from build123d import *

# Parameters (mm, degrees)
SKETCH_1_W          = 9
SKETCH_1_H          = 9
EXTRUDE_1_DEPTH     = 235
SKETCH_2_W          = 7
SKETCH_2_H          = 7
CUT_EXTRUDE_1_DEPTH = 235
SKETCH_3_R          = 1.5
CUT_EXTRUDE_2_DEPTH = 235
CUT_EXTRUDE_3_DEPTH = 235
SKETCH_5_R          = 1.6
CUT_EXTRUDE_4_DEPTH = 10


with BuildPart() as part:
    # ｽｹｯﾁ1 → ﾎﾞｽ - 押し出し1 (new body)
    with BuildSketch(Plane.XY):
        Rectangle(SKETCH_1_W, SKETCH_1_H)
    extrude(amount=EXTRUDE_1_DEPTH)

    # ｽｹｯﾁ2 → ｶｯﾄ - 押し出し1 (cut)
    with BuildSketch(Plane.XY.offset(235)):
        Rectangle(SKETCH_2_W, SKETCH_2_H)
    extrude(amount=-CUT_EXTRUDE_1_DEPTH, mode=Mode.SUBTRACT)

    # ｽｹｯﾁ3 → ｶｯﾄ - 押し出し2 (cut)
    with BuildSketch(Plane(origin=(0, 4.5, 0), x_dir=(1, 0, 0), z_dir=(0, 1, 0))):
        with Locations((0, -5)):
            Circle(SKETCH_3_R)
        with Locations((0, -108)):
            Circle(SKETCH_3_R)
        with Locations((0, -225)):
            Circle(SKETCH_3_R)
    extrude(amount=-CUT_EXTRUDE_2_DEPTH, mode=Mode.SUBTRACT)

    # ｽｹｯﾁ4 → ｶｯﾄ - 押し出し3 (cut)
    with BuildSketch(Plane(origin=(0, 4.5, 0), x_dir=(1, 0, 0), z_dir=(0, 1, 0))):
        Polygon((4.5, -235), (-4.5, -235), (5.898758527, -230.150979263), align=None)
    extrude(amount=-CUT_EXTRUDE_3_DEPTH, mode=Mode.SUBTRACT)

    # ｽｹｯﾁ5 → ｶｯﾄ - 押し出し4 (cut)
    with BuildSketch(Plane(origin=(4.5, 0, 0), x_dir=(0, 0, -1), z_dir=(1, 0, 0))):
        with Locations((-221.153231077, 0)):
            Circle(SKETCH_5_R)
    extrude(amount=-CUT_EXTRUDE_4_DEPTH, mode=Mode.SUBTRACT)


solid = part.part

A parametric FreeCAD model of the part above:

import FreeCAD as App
import Part
import Sketcher
Q = App.Units.Quantity

doc = App.newDocument("Part")
body = doc.addObject("PartDesign::Body", "Body")

# Sketch on XY plane
sketch1 = body.newObject("Sketcher::SketchObject", "Sketch")
sketch1.AttachmentSupport = (doc.getObject("XY_Plane"), [""])
sketch1.MapMode = "FlatFace"
sketch1.addGeometry(Part.LineSegment(App.Vector(-4.5, 4.5, 0), App.Vector(-4.5, -4.5, 0)), False)
sketch1.addGeometry(Part.LineSegment(App.Vector(-4.5, -4.5, 0), App.Vector(4.5, -4.5, 0)), False)
sketch1.addGeometry(Part.LineSegment(App.Vector(4.5, -4.5, 0), App.Vector(4.5, 4.5, 0)), False)
sketch1.addGeometry(Part.LineSegment(App.Vector(4.5, 4.5, 0), App.Vector(-4.5, 4.5, 0)), False)
sketch1.addConstraint(Sketcher.Constraint("Coincident", 0, 2, 1, 1))
sketch1.addConstraint(Sketcher.Constraint("Coincident", 1, 2, 2, 1))
sketch1.addConstraint(Sketcher.Constraint("Coincident", 2, 2, 3, 1))
sketch1.addConstraint(Sketcher.Constraint("Coincident", 3, 2, 0, 1))
sketch1.addConstraint(Sketcher.Constraint("Vertical", 0))
sketch1.addConstraint(Sketcher.Constraint("Horizontal", 1))
sketch1.addConstraint(Sketcher.Constraint("Vertical", 2))
sketch1.addConstraint(Sketcher.Constraint("Horizontal", 3))
sketch1.addConstraint(Sketcher.Constraint("Symmetric", 0, 2, 2, 2, -1, 1))
sketch1.addConstraint(Sketcher.Constraint("Equal", 3, 0))
sketch1.addConstraint(Sketcher.Constraint("DistanceX", 1, 1, 1, 2, 9.0))
pad1 = body.newObject("PartDesign::Pad", "Pad")
pad1.Profile = sketch1
pad1.Length = 235

# Sketch on XY plane
sketch2 = body.newObject("Sketcher::SketchObject", "Sketch001")
sketch2.AttachmentSupport = (doc.getObject("XY_Plane"), [""])
sketch2.MapMode = "FlatFace"
sketch2.AttachmentOffset = App.Placement(App.Vector(0, 0, 235), App.Rotation())
sketch2.addGeometry(Part.LineSegment(App.Vector(-3.5, 3.5, 0), App.Vector(-3.5, -3.5, 0)), False)
sketch2.addGeometry(Part.LineSegment(App.Vector(-3.5, -3.5, 0), App.Vector(3.5, -3.5, 0)), False)
sketch2.addGeometry(Part.LineSegment(App.Vector(3.5, -3.5, 0), App.Vector(3.5, 3.5, 0)), False)
sketch2.addGeometry(Part.LineSegment(App.Vector(3.5, 3.5, 0), App.Vector(-3.5, 3.5, 0)), False)
sketch2.addConstraint(Sketcher.Constraint("Coincident", 0, 2, 1, 1))
sketch2.addConstraint(Sketcher.Constraint("Coincident", 1, 2, 2, 1))
sketch2.addConstraint(Sketcher.Constraint("Coincident", 2, 2, 3, 1))
sketch2.addConstraint(Sketcher.Constraint("Coincident", 3, 2, 0, 1))
sketch2.addConstraint(Sketcher.Constraint("Vertical", 0))
sketch2.addConstraint(Sketcher.Constraint("Horizontal", 1))
sketch2.addConstraint(Sketcher.Constraint("Vertical", 2))
sketch2.addConstraint(Sketcher.Constraint("Horizontal", 3))
sketch2.addConstraint(Sketcher.Constraint("Symmetric", 0, 2, 2, 2, -1, 1))
sketch2.addConstraint(Sketcher.Constraint("Equal", 3, 0))
sketch2.addConstraint(Sketcher.Constraint("DistanceX", 1, 1, 1, 2, 7.0))
pocket1 = body.newObject("PartDesign::Pocket", "Pocket")
pocket1.Profile = sketch2
pocket1.Length = 235

# Sketch on XZ plane
sketch3 = body.newObject("Sketcher::SketchObject", "Sketch002")
sketch3.AttachmentSupport = (doc.getObject("XZ_Plane"), [""])
sketch3.MapMode = "FlatFace"
sketch3.AttachmentOffset = App.Placement(App.Vector(0, 0, -4.5), App.Rotation())
sketch3.addGeometry(Part.Circle(App.Vector(0, 5, 0), App.Vector(0, 0, 1), 1.5), False)
sketch3.addGeometry(Part.Circle(App.Vector(0, 108, 0), App.Vector(0, 0, 1), 1.5), False)
sketch3.addGeometry(Part.Circle(App.Vector(0, 225, 0), App.Vector(0, 0, 1), 1.5), False)
sketch3.addConstraint(Sketcher.Constraint("Equal", 0, 1))
sketch3.addConstraint(Sketcher.Constraint("Equal", 1, 2))
sketch3.addConstraint(Sketcher.Constraint("PointOnObject", 0, 3, -2))
sketch3.addConstraint(Sketcher.Constraint("PointOnObject", 1, 3, -2))
sketch3.addConstraint(Sketcher.Constraint("PointOnObject", 2, 3, -2))
sketch3.addConstraint(Sketcher.Constraint("Diameter", 0, 3.0))
sketch3.addConstraint(Sketcher.Constraint("DistanceY", -1, 1, 0, 3, 5.0))
sketch3.addConstraint(Sketcher.Constraint("DistanceY", -1, 1, 1, 3, 108.0))
sketch3.addConstraint(Sketcher.Constraint("DistanceY", -1, 1, 2, 3, 225.0))
pocket2 = body.newObject("PartDesign::Pocket", "Pocket001")
pocket2.Profile = sketch3
pocket2.Length = 235
pocket2.Reversed = True

# Sketch on XZ plane
sketch4 = body.newObject("Sketcher::SketchObject", "Sketch003")
sketch4.AttachmentSupport = (doc.getObject("XZ_Plane"), [""])
sketch4.MapMode = "FlatFace"
sketch4.AttachmentOffset = App.Placement(App.Vector(0, 0, -4.5), App.Rotation())
sketch4.addGeometry(Part.LineSegment(App.Vector(-4.5, 235, 0), App.Vector(4.5, 235, 0)), False)
sketch4.addGeometry(Part.LineSegment(App.Vector(4.5, 235, 0), App.Vector(5.898759, 230.150979, 0)), False)
sketch4.addGeometry(Part.LineSegment(App.Vector(5.898759, 230.150979, 0), App.Vector(-4.5, 235, 0)), False)
sketch4.addConstraint(Sketcher.Constraint("Coincident", 0, 2, 1, 1))
sketch4.addConstraint(Sketcher.Constraint("Coincident", 1, 2, 2, 1))
sketch4.addConstraint(Sketcher.Constraint("Coincident", 2, 2, 0, 1))
sketch4.addConstraint(Sketcher.Constraint("Horizontal", 0))
sketch4.addConstraint(Sketcher.Constraint("DistanceX", 0, 1, 0, 2, 9.0))
sketch4.addConstraint(Sketcher.Constraint("Angle", 2, Q("155 deg")))
sketch4.addConstraint(Sketcher.Constraint("DistanceY", -1, 1, 0, 2, 235.0))
sketch4.addConstraint(Sketcher.Constraint("DistanceX", -1, 1, 0, 2, 4.5))
sketch4.addConstraint(Sketcher.Constraint("Distance", 2, 11.473761))
pocket3 = body.newObject("PartDesign::Pocket", "Pocket002")
pocket3.Profile = sketch4
pocket3.Length = 235
pocket3.Reversed = True

# Sketch on YZ plane
sketch5 = body.newObject("Sketcher::SketchObject", "Sketch004")
sketch5.AttachmentSupport = (doc.getObject("YZ_Plane"), [""])
sketch5.MapMode = "FlatFace"
sketch5.AttachmentOffset = App.Placement(App.Vector(0, 0, 4.5), App.Rotation())
sketch5.addGeometry(Part.Circle(App.Vector(0, 221.153231, 0), App.Vector(0, 0, 1), 1.6), False)
sketch5.addConstraint(Sketcher.Constraint("PointOnObject", 0, 3, -2))
sketch5.addConstraint(Sketcher.Constraint("Diameter", 0, 3.2))
sketch5.addConstraint(Sketcher.Constraint("DistanceY", -1, 1, 0, 3, 221.153231))
pocket4 = body.newObject("PartDesign::Pocket", "Pocket003")
pocket4.Profile = sketch5
pocket4.Length = 10

doc.recompute()
